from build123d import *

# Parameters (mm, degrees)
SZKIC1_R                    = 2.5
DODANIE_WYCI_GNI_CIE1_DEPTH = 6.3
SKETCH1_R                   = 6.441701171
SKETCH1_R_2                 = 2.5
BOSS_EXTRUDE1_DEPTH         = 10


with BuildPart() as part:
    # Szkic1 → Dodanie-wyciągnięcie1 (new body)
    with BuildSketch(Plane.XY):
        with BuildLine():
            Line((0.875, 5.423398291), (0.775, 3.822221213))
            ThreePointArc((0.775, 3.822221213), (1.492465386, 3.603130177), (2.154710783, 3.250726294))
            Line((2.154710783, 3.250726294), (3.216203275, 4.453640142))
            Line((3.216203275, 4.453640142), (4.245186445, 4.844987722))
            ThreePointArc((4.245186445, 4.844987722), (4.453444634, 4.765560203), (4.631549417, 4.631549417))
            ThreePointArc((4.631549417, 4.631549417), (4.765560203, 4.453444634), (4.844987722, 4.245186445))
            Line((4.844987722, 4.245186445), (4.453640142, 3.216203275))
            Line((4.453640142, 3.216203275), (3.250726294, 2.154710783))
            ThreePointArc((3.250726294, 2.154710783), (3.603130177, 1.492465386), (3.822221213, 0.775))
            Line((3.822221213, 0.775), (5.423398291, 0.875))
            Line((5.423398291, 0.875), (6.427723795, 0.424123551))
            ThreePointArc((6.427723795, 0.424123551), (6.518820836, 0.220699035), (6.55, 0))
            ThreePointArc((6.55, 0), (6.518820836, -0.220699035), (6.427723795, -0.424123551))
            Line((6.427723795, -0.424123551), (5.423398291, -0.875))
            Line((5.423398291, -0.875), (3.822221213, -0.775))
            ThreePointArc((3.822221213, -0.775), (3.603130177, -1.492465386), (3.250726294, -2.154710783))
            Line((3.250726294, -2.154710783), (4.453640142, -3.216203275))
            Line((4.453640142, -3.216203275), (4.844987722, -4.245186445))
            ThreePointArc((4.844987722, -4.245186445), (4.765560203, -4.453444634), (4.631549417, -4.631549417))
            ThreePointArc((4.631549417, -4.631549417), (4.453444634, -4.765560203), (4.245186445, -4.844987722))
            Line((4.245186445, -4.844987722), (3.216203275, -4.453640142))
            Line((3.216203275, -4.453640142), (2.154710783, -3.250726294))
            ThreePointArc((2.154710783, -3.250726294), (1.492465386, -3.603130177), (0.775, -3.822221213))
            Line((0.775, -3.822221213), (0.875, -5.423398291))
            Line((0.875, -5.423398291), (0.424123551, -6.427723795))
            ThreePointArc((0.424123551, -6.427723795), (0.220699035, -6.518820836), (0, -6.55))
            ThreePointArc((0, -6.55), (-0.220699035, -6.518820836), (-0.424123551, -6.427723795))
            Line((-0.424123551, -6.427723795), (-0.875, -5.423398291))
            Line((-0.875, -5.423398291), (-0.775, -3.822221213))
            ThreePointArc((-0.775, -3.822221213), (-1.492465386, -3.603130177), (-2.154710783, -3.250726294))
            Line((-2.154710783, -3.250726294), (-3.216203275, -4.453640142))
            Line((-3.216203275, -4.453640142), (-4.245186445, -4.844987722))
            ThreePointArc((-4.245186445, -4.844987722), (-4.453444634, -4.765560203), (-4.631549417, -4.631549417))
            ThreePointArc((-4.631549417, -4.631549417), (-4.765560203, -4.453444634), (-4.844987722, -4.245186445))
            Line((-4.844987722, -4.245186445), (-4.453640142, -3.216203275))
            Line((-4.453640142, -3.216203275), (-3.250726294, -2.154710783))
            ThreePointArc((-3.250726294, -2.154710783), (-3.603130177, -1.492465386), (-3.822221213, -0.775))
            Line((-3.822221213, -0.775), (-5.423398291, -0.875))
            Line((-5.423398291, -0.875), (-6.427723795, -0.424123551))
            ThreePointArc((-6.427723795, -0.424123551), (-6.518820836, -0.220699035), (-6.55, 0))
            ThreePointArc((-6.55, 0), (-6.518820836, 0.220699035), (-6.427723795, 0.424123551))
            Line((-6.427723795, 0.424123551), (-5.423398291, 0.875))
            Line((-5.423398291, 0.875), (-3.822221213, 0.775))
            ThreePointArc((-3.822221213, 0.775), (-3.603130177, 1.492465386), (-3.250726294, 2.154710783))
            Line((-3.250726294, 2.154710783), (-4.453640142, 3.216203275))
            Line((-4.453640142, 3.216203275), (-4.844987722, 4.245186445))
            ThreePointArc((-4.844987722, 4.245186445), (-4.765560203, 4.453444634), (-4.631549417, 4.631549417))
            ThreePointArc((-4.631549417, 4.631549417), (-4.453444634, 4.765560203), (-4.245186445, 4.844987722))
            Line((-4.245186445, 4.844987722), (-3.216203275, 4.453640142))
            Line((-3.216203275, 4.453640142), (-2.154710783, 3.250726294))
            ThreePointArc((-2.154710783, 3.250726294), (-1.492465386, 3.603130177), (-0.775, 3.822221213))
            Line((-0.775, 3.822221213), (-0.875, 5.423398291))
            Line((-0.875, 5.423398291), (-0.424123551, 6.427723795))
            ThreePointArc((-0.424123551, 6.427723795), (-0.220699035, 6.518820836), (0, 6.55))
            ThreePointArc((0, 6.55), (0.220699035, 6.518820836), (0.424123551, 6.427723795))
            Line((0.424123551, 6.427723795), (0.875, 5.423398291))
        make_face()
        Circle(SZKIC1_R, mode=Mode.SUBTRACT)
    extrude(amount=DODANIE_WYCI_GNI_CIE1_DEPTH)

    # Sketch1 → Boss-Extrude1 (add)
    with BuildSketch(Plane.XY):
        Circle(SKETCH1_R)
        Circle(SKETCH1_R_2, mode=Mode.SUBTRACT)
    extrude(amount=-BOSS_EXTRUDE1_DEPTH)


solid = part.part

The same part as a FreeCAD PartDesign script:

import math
import FreeCAD as App
import Part
import Sketcher
from FreeCAD import Vector

doc = App.newDocument("Part")
body = doc.addObject("PartDesign::Body", "Body")

# Sketch on XY plane
sketch1 = doc.addObject("Sketcher::SketchObject", "Sketch")
body.addObject(sketch1)
sketch1.AttachmentSupport = (doc.XY_Plane, [""])
sketch1.MapMode = "FlatFace"
sketch1.addGeometry([
    Part.LineSegment(Vector(0.775, 3.822221, 0), Vector(0.875, 5.423398, 0)),  # 0
    Part.LineSegment(Vector(0.875, 5.423398, 0), Vector(0.424124, 6.427724, 0)),  # 1
    Part.ArcOfCircle(Part.Circle(Vector(0, 5.753311, 0), Vector(0, 0, 1), 0.796689), math.radians(57.835112), math.radians(90)),  # 2
    Part.ArcOfCircle(Part.Circle(Vector(0, 5.753311, 0), Vector(0, 0, 1), 0.796689), math.radians(90), math.radians(122.164888)),  # 3
    Part.LineSegment(Vector(-0.424124, 6.427724, 0), Vector(-0.875, 5.423398, 0)),  # 4
    Part.LineSegment(Vector(-0.875, 5.423398, 0), Vector(-0.775, 3.822221, 0)),  # 5
    Part.ArcOfCircle(Part.Circle(Vector(0, 0, 0), Vector(0, 0, 1), 3.9), math.radians(101.461998), math.radians(123.538002)),  # 6
    Part.LineSegment(Vector(-2.154711, 3.250726, 0), Vector(-3.216203, 4.45364, 0)),  # 7
    Part.LineSegment(Vector(-3.216203, 4.45364, 0), Vector(-4.245186, 4.844988, 0)),  # 8
    Part.ArcOfCircle(Part.Circle(Vector(-4.068205, 4.068205, 0), Vector(0, 0, 1), 0.796689), math.radians(102.835112), math.radians(135)),  # 9
    Part.ArcOfCircle(Part.Circle(Vector(-4.068205, 4.068205, 0), Vector(0, 0, 1), 0.796689), math.radians(135), math.radians(167.164888)),  # 10
    Part.LineSegment(Vector(-4.844988, 4.245186, 0), Vector(-4.45364, 3.216203, 0)),  # 11
    Part.LineSegment(Vector(-4.45364, 3.216203, 0), Vector(-3.250726, 2.154711, 0)),  # 12
    Part.ArcOfCircle(Part.Circle(Vector(0, 0, 0), Vector(0, 0, 1), 3.9), math.radians(146.461998), math.radians(168.538002)),  # 13
    Part.LineSegment(Vector(-3.822221, 0.775, 0), Vector(-5.423398, 0.875, 0)),  # 14
    Part.LineSegment(Vector(-5.423398, 0.875, 0), Vector(-6.427724, 0.424124, 0)),  # 15
    Part.ArcOfCircle(Part.Circle(Vector(-5.753311, 0, 0), Vector(0, 0, 1), 0.796689), math.radians(147.835112), math.radians(180)),  # 16
    Part.ArcOfCircle(Part.Circle(Vector(-5.753311, 0, 0), Vector(0, 0, 1), 0.796689), math.radians(-180), math.radians(-147.835112)),  # 17
    Part.LineSegment(Vector(-6.427724, -0.424124, 0), Vector(-5.423398, -0.875, 0)),  # 18
    Part.LineSegment(Vector(-5.423398, -0.875, 0), Vector(-3.822221, -0.775, 0)),  # 19
    Part.ArcOfCircle(Part.Circle(Vector(0, 0, 0), Vector(0, 0, 1), 3.9), math.radians(-168.538002), math.radians(-146.461998)),  # 20
    Part.LineSegment(Vector(-3.250726, -2.154711, 0), Vector(-4.45364, -3.216203, 0)),  # 21
    Part.LineSegment(Vector(-4.45364, -3.216203, 0), Vector(-4.844988, -4.245186, 0)),  # 22
    Part.ArcOfCircle(Part.Circle(Vector(-4.068205, -4.068205, 0), Vector(0, 0, 1), 0.796689), math.radians(-167.164888), math.radians(-135)),  # 23
    Part.ArcOfCircle(Part.Circle(Vector(-4.068205, -4.068205, 0), Vector(0, 0, 1), 0.796689), math.radians(-135), math.radians(-102.835112)),  # 24
    Part.LineSegment(Vector(-4.245186, -4.844988, 0), Vector(-3.216203, -4.45364, 0)),  # 25
    Part.LineSegment(Vector(-3.216203, -4.45364, 0), Vector(-2.154711, -3.250726, 0)),  # 26
    Part.ArcOfCircle(Part.Circle(Vector(0, 0, 0), Vector(0, 0, 1), 3.9), math.radians(-123.538002), math.radians(-101.461998)),  # 27
    Part.LineSegment(Vector(-0.775, -3.822221, 0), Vector(-0.875, -5.423398, 0)),  # 28
    Part.LineSegment(Vector(-0.875, -5.423398, 0), Vector(-0.424124, -6.427724, 0)),  # 29
    Part.ArcOfCircle(Part.Circle(Vector(0, -5.753311, 0), Vector(0, 0, 1), 0.796689), math.radians(-122.164888), math.radians(-90)),  # 30
    Part.ArcOfCircle(Part.Circle(Vector(0, -5.753311, 0), Vector(0, 0, 1), 0.796689), math.radians(-90), math.radians(-57.835112)),  # 31
    Part.LineSegment(Vector(0.424124, -6.427724, 0), Vector(0.875, -5.423398, 0)),  # 32
    Part.LineSegment(Vector(0.875, -5.423398, 0), Vector(0.775, -3.822221, 0)),  # 33
    Part.ArcOfCircle(Part.Circle(Vector(0, 0, 0), Vector(0, 0, 1), 3.9), math.radians(-78.538002), math.radians(-56.461998)),  # 34
    Part.LineSegment(Vector(2.154711, -3.250726, 0), Vector(3.216203, -4.45364, 0)),  # 35
    Part.LineSegment(Vector(3.216203, -4.45364, 0), Vector(4.245186, -4.844988, 0)),  # 36
    Part.ArcOfCircle(Part.Circle(Vector(4.068205, -4.068205, 0), Vector(0, 0, 1), 0.796689), math.radians(-77.164888), math.radians(-45)),  # 37
    Part.ArcOfCircle(Part.Circle(Vector(4.068205, -4.068205, 0), Vector(0, 0, 1), 0.796689), math.radians(-45), math.radians(-12.835112)),  # 38
    Part.LineSegment(Vector(4.844988, -4.245186, 0), Vector(4.45364, -3.216203, 0)),  # 39
    Part.LineSegment(Vector(4.45364, -3.216203, 0), Vector(3.250726, -2.154711, 0)),  # 40
    Part.ArcOfCircle(Part.Circle(Vector(0, 0, 0), Vector(0, 0, 1), 3.9), math.radians(-33.538002), math.radians(-11.461998)),  # 41
    Part.LineSegment(Vector(3.822221, -0.775, 0), Vector(5.423398, -0.875, 0)),  # 42
    Part.LineSegment(Vector(5.423398, -0.875, 0), Vector(6.427724, -0.424124, 0)),  # 43
    Part.ArcOfCircle(Part.Circle(Vector(5.753311, 0, 0), Vector(0, 0, 1), 0.796689), math.radians(-32.164888), math.radians(0)),  # 44
    Part.ArcOfCircle(Part.Circle(Vector(5.753311, 0, 0), Vector(0, 0, 1), 0.796689), math.radians(0), math.radians(32.164888)),  # 45
    Part.LineSegment(Vector(6.427724, 0.424124, 0), Vector(5.423398, 0.875, 0)),  # 46
    Part.LineSegment(Vector(5.423398, 0.875, 0), Vector(3.822221, 0.775, 0)),  # 47
    Part.ArcOfCircle(Part.Circle(Vector(0, 0, 0), Vector(0, 0, 1), 3.9), math.radians(11.461998), math.radians(33.538002)),  # 48
    Part.LineSegment(Vector(3.250726, 2.154711, 0), Vector(4.45364, 3.216203, 0)),  # 49
    Part.LineSegment(Vector(4.45364, 3.216203, 0), Vector(4.844988, 4.245186, 0)),  # 50
    Part.ArcOfCircle(Part.Circle(Vector(4.068205, 4.068205, 0), Vector(0, 0, 1), 0.796689), math.radians(12.835112), math.radians(45)),  # 51
    Part.ArcOfCircle(Part.Circle(Vector(4.068205, 4.068205, 0), Vector(0, 0, 1), 0.796689), math.radians(45), math.radians(77.164888)),  # 52
    Part.LineSegment(Vector(4.245186, 4.844988, 0), Vector(3.216203, 4.45364, 0)),  # 53
    Part.LineSegment(Vector(3.216203, 4.45364, 0), Vector(2.154711, 3.250726, 0)),  # 54
    Part.ArcOfCircle(Part.Circle(Vector(0, 0, 0), Vector(0, 0, 1), 3.9), math.radians(56.461998), math.radians(78.538002)),  # 55
    Part.Circle(Vector(0, 0, 0), Vector(0, 0, 1), 2.5),  # 56
], False)
sketch1.addConstraint([
    Sketcher.Constraint("Coincident", 0, 2, 1, 1),
    Sketcher.Constraint("Coincident", 1, 2, 2, 1),
    Sketcher.Constraint("Tangent", 2, 2, 3, 1),
    Sketcher.Constraint("Coincident", 3, 2, 4, 1),
    Sketcher.Constraint("Coincident", 4, 2, 5, 1),
    Sketcher.Constraint("Coincident", 5, 2, 6, 1),
    Sketcher.Constraint("Coincident", 6, 2, 7, 1),
    Sketcher.Constraint("Coincident", 7, 2, 8, 1),
    Sketcher.Constraint("Coincident", 8, 2, 9, 1),
    Sketcher.Constraint("Tangent", 9, 2, 10, 1),
    Sketcher.Constraint("Coincident", 10, 2, 11, 1),
    Sketcher.Constraint("Coincident", 11, 2, 12, 1),
    Sketcher.Constraint("Coincident", 12, 2, 13, 1),
    Sketcher.Constraint("Coincident", 13, 2, 14, 1),
    Sketcher.Constraint("Coincident", 14, 2, 15, 1),
    Sketcher.Constraint("Coincident", 15, 2, 16, 1),
    Sketcher.Constraint("Tangent", 16, 2, 17, 1),
    Sketcher.Constraint("Coincident", 17, 2, 18, 1),
    Sketcher.Constraint("Coincident", 18, 2, 19, 1),
    Sketcher.Constraint("Coincident", 19, 2, 20, 1),
    Sketcher.Constraint("Coincident", 20, 2, 21, 1),
    Sketcher.Constraint("Coincident", 21, 2, 22, 1),
    Sketcher.Constraint("Coincident", 22, 2, 23, 1),
    Sketcher.Constraint("Tangent", 23, 2, 24, 1),
    Sketcher.Constraint("Coincident", 24, 2, 25, 1),
    Sketcher.Constraint("Coincident", 25, 2, 26, 1),
    Sketcher.Constraint("Coincident", 26, 2, 27, 1),
    Sketcher.Constraint("Coincident", 27, 2, 28, 1),
    Sketcher.Constraint("Coincident", 28, 2, 29, 1),
    Sketcher.Constraint("Coincident", 29, 2, 30, 1),
    Sketcher.Constraint("Tangent", 30, 2, 31, 1),
    Sketcher.Constraint("Coincident", 31, 2, 32, 1),
    Sketcher.Constraint("Coincident", 32, 2, 33, 1),
    Sketcher.Constraint("Coincident", 33, 2, 34, 1),
    Sketcher.Constraint("Coincident", 34, 2, 35, 1),
    Sketcher.Constraint("Coincident", 35, 2, 36, 1),
    Sketcher.Constraint("Coincident", 36, 2, 37, 1),
    Sketcher.Constraint("Tangent", 37, 2, 38, 1),
    Sketcher.Constraint("Coincident", 38, 2, 39, 1),
    Sketcher.Constraint("Coincident", 39, 2, 40, 1),
    Sketcher.Constraint("Coincident", 40, 2, 41, 1),
    Sketcher.Constraint("Coincident", 41, 2, 42, 1),
    Sketcher.Constraint("Coincident", 42, 2, 43, 1),
    Sketcher.Constraint("Coincident", 43, 2, 44, 1),
    Sketcher.Constraint("Tangent", 44, 2, 45, 1),
    Sketcher.Constraint("Coincident", 45, 2, 46, 1),
    Sketcher.Constraint("Coincident", 46, 2, 47, 1),
    Sketcher.Constraint("Coincident", 47, 2, 48, 1),
    Sketcher.Constraint("Coincident", 48, 2, 49, 1),
    Sketcher.Constraint("Coincident", 49, 2, 50, 1),
    Sketcher.Constraint("Coincident", 50, 2, 51, 1),
    Sketcher.Constraint("Tangent", 51, 2, 52, 1),
    Sketcher.Constraint("Coincident", 52, 2, 53, 1),
    Sketcher.Constraint("Coincident", 53, 2, 54, 1),
    Sketcher.Constraint("Coincident", 54, 2, 55, 1),
    Sketcher.Constraint("Coincident", 55, 2, 0, 1),
    Sketcher.Constraint("Coincident", 6, 3, -1, 1),
    Sketcher.Constraint("Coincident", 13, 3, -1, 1),
    Sketcher.Constraint("Coincident", 20, 3, -1, 1),
    Sketcher.Constraint("Coincident", 27, 3, -1, 1),
    Sketcher.Constraint("Coincident", 34, 3, -1, 1),
    Sketcher.Constraint("Coincident", 41, 3, -1, 1),
    Sketcher.Constraint("Coincident", 48, 3, -1, 1),
    Sketcher.Constraint("Coincident", 55, 3, -1, 1),
    Sketcher.Constraint("Coincident", 56, 3, -1, 1),
    Sketcher.Constraint("Equal", 2, 3),
    Sketcher.Constraint("Equal", 3, 9),
    Sketcher.Constraint("Equal", 9, 10),
    Sketcher.Constraint("Equal", 6, 13),
    Sketcher.Constraint("Equal", 10, 16),
    Sketcher.Constraint("Equal", 16, 17),
    Sketcher.Constraint("Equal", 13, 20),
    Sketcher.Constraint("Equal", 17, 23),
    Sketcher.Constraint("Equal", 23, 24),
    Sketcher.Constraint("Equal", 20, 27),
    Sketcher.Constraint("Equal", 24, 30),
    Sketcher.Constraint("Equal", 30, 31),
    Sketcher.Constraint("Equal", 27, 34),
    Sketcher.Constraint("Equal", 31, 37),
    Sketcher.Constraint("Equal", 37, 38),
    Sketcher.Constraint("Equal", 34, 41),
    Sketcher.Constraint("Equal", 38, 44),
    Sketcher.Constraint("Equal", 44, 45),
    Sketcher.Constraint("Equal", 41, 48),
    Sketcher.Constraint("Equal", 45, 51),
    Sketcher.Constraint("Equal", 51, 52),
    Sketcher.Constraint("Equal", 48, 55),
    Sketcher.Constraint("Symmetric", 2, 3, 30, 3, -1, 1),
    Sketcher.Constraint("Symmetric", 9, 3, 37, 3, -1, 1),
    Sketcher.Constraint("Symmetric", 16, 3, 44, 3, -1, 1),
    Sketcher.Constraint("Symmetric", 23, 3, 51, 3, -1, 1),
    Sketcher.Constraint("Symmetric", 0, 2, 28, 2, -1, 1),
    Sketcher.Constraint("Symmetric", 4, 2, 32, 2, -1, 1),
    Sketcher.Constraint("Symmetric", 7, 2, 35, 2, -1, 1),
    Sketcher.Constraint("Symmetric", 11, 2, 39, 2, -1, 1),
    Sketcher.Constraint("Symmetric", 14, 2, 42, 2, -1, 1),
    Sketcher.Constraint("Symmetric", 18, 2, 46, 2, -1, 1),
    Sketcher.Constraint("Symmetric", 21, 2, 49, 2, -1, 1),
    Sketcher.Constraint("Symmetric", 25, 2, 53, 2, -1, 1),
    Sketcher.Constraint("Symmetric", 23, 3, 37, 3, -2),
    Sketcher.Constraint("Symmetric", 1, 2, 3, 2, -2),
    Sketcher.Constraint("Symmetric", 0, 2, 4, 2, -2),
    Sketcher.Constraint("Symmetric", 25, 2, 35, 2, -2),
    Sketcher.Constraint("Symmetric", 21, 2, 39, 2, -2),
    Sketcher.Constraint("Symmetric", 18, 2, 42, 2, -2),
    Sketcher.Constraint("Symmetric", 17, 2, 43, 2, -2),
    Sketcher.Constraint("PointOnObject", 2, 2, -2),
    Sketcher.Constraint("PointOnObject", 16, 2, -1),
    Sketcher.Constraint("PointOnObject", 30, 2, -2),
    Sketcher.Constraint("PointOnObject", 44, 2, -1),
    Sketcher.Constraint("Perpendicular", 0, 14),
    Sketcher.Constraint("Perpendicular", 1, 15),
    Sketcher.Constraint("Perpendicular", 4, 18),
    Sketcher.Constraint("Perpendicular", 5, 19),
    Sketcher.Constraint("Perpendicular", 7, 21),
    Sketcher.Constraint("Perpendicular", 8, 22),
    Sketcher.Constraint("Perpendicular", 11, 25),
    Sketcher.Constraint("Perpendicular", 12, 26),
    Sketcher.Constraint("Perpendicular", 14, 28),
    Sketcher.Constraint("Perpendicular", 15, 29),
    Sketcher.Constraint("Perpendicular", 18, 32),
    Sketcher.Constraint("Perpendicular", 19, 33),
    Sketcher.Constraint("Perpendicular", 21, 35),
    Sketcher.Constraint("Perpendicular", 22, 36),
    Sketcher.Constraint("Perpendicular", 25, 39),
    Sketcher.Constraint("Perpendicular", 26, 40),
    Sketcher.Constraint("Perpendicular", 28, 42),
    Sketcher.Constraint("Perpendicular", 32, 46),
    Sketcher.Constraint("Perpendicular", 33, 47),
    Sketcher.Constraint("Perpendicular", 35, 49),
    Sketcher.Constraint("Perpendicular", 36, 50),
    Sketcher.Constraint("Perpendicular", 39, 53),
    Sketcher.Constraint("Perpendicular", 40, 54),
    Sketcher.Constraint("Horizontal", 27, 2, 33, 2),
    Sketcher.Constraint("Horizontal", 26, 2, 34, 2),
    Sketcher.Constraint("Horizontal", 24, 2, 36, 2),
    Sketcher.Constraint("Horizontal", 23, 2, 37, 2),
    Sketcher.Constraint("Horizontal", 9, 2, 51, 2),
    Sketcher.Constraint("Vertical", 9, 2, 23, 2),
    Sketcher.Constraint("Equal", 5, 7),
    Sketcher.Constraint("Equal", 4, 8),
    Sketcher.Constraint("Equal", 8, 11),
    Sketcher.Constraint("Equal", 7, 12),
    Sketcher.Constraint("Equal", 12, 14),
    Sketcher.Constraint("Equal", 11, 15),
    Sketcher.Constraint("Diameter", 56, 5.0),
    Sketcher.Constraint("Radius", 6, 3.9),
    Sketcher.Constraint("DistanceY", -1, 1, 2, 2, 6.55),
    Sketcher.Constraint("DistanceX", 16, 2, -1, 1, 6.55),
    Sketcher.Constraint("Radius", 2, 0.796689),
    Sketcher.Constraint("DistanceX", -1, 1, 0, 2, 0.875),
    Sketcher.Constraint("DistanceX", 5, 2, -1, 1, 0.775),
    Sketcher.Constraint("DistanceY", -1, 1, 0, 2, 5.423398),
    Sketcher.Constraint("Distance", 1, 1.10089),
    Sketcher.Constraint("DistanceX", 6, 2, -1, 1, 2.154711),
    Sketcher.Constraint("DistanceY", -1, 1, 7, 2, 4.45364),
    Sketcher.Constraint("DistanceX", 9, 2, -1, 1, 4.631549),
    Sketcher.Constraint("DistanceY", -1, 1, 9, 2, 4.631549),
    Sketcher.Constraint("DistanceX", 11, 2, -1, 1, 4.45364),
])
pad1 = doc.addObject("PartDesign::Pad", "Pad")
body.addObject(pad1)
pad1.Profile = sketch1
pad1.Length = 6.3

# Sketch on XY plane
sketch2 = doc.addObject("Sketcher::SketchObject", "Sketch001")
body.addObject(sketch2)
sketch2.AttachmentSupport = (doc.XY_Plane, [""])
sketch2.MapMode = "FlatFace"
sketch2.addGeometry([
    Part.Circle(Vector(0, 0, 0), Vector(0, 0, 1), 6.441701),
    Part.Circle(Vector(0, 0, 0), Vector(0, 0, 1), 2.5),
], False)
sketch2.addConstraint([
    Sketcher.Constraint("Coincident", 0, 3, -1, 1),
    Sketcher.Constraint("Coincident", 1, 3, -1, 1),
    Sketcher.Constraint("Diameter", 1, 5.0),
    Sketcher.Constraint("Diameter", 0, 12.883402),
])
pad2 = doc.addObject("PartDesign::Pad", "Pad001")
body.addObject(pad2)
pad2.Profile = sketch2
pad2.Length = 10
pad2.Reversed = True

doc.recompute()
